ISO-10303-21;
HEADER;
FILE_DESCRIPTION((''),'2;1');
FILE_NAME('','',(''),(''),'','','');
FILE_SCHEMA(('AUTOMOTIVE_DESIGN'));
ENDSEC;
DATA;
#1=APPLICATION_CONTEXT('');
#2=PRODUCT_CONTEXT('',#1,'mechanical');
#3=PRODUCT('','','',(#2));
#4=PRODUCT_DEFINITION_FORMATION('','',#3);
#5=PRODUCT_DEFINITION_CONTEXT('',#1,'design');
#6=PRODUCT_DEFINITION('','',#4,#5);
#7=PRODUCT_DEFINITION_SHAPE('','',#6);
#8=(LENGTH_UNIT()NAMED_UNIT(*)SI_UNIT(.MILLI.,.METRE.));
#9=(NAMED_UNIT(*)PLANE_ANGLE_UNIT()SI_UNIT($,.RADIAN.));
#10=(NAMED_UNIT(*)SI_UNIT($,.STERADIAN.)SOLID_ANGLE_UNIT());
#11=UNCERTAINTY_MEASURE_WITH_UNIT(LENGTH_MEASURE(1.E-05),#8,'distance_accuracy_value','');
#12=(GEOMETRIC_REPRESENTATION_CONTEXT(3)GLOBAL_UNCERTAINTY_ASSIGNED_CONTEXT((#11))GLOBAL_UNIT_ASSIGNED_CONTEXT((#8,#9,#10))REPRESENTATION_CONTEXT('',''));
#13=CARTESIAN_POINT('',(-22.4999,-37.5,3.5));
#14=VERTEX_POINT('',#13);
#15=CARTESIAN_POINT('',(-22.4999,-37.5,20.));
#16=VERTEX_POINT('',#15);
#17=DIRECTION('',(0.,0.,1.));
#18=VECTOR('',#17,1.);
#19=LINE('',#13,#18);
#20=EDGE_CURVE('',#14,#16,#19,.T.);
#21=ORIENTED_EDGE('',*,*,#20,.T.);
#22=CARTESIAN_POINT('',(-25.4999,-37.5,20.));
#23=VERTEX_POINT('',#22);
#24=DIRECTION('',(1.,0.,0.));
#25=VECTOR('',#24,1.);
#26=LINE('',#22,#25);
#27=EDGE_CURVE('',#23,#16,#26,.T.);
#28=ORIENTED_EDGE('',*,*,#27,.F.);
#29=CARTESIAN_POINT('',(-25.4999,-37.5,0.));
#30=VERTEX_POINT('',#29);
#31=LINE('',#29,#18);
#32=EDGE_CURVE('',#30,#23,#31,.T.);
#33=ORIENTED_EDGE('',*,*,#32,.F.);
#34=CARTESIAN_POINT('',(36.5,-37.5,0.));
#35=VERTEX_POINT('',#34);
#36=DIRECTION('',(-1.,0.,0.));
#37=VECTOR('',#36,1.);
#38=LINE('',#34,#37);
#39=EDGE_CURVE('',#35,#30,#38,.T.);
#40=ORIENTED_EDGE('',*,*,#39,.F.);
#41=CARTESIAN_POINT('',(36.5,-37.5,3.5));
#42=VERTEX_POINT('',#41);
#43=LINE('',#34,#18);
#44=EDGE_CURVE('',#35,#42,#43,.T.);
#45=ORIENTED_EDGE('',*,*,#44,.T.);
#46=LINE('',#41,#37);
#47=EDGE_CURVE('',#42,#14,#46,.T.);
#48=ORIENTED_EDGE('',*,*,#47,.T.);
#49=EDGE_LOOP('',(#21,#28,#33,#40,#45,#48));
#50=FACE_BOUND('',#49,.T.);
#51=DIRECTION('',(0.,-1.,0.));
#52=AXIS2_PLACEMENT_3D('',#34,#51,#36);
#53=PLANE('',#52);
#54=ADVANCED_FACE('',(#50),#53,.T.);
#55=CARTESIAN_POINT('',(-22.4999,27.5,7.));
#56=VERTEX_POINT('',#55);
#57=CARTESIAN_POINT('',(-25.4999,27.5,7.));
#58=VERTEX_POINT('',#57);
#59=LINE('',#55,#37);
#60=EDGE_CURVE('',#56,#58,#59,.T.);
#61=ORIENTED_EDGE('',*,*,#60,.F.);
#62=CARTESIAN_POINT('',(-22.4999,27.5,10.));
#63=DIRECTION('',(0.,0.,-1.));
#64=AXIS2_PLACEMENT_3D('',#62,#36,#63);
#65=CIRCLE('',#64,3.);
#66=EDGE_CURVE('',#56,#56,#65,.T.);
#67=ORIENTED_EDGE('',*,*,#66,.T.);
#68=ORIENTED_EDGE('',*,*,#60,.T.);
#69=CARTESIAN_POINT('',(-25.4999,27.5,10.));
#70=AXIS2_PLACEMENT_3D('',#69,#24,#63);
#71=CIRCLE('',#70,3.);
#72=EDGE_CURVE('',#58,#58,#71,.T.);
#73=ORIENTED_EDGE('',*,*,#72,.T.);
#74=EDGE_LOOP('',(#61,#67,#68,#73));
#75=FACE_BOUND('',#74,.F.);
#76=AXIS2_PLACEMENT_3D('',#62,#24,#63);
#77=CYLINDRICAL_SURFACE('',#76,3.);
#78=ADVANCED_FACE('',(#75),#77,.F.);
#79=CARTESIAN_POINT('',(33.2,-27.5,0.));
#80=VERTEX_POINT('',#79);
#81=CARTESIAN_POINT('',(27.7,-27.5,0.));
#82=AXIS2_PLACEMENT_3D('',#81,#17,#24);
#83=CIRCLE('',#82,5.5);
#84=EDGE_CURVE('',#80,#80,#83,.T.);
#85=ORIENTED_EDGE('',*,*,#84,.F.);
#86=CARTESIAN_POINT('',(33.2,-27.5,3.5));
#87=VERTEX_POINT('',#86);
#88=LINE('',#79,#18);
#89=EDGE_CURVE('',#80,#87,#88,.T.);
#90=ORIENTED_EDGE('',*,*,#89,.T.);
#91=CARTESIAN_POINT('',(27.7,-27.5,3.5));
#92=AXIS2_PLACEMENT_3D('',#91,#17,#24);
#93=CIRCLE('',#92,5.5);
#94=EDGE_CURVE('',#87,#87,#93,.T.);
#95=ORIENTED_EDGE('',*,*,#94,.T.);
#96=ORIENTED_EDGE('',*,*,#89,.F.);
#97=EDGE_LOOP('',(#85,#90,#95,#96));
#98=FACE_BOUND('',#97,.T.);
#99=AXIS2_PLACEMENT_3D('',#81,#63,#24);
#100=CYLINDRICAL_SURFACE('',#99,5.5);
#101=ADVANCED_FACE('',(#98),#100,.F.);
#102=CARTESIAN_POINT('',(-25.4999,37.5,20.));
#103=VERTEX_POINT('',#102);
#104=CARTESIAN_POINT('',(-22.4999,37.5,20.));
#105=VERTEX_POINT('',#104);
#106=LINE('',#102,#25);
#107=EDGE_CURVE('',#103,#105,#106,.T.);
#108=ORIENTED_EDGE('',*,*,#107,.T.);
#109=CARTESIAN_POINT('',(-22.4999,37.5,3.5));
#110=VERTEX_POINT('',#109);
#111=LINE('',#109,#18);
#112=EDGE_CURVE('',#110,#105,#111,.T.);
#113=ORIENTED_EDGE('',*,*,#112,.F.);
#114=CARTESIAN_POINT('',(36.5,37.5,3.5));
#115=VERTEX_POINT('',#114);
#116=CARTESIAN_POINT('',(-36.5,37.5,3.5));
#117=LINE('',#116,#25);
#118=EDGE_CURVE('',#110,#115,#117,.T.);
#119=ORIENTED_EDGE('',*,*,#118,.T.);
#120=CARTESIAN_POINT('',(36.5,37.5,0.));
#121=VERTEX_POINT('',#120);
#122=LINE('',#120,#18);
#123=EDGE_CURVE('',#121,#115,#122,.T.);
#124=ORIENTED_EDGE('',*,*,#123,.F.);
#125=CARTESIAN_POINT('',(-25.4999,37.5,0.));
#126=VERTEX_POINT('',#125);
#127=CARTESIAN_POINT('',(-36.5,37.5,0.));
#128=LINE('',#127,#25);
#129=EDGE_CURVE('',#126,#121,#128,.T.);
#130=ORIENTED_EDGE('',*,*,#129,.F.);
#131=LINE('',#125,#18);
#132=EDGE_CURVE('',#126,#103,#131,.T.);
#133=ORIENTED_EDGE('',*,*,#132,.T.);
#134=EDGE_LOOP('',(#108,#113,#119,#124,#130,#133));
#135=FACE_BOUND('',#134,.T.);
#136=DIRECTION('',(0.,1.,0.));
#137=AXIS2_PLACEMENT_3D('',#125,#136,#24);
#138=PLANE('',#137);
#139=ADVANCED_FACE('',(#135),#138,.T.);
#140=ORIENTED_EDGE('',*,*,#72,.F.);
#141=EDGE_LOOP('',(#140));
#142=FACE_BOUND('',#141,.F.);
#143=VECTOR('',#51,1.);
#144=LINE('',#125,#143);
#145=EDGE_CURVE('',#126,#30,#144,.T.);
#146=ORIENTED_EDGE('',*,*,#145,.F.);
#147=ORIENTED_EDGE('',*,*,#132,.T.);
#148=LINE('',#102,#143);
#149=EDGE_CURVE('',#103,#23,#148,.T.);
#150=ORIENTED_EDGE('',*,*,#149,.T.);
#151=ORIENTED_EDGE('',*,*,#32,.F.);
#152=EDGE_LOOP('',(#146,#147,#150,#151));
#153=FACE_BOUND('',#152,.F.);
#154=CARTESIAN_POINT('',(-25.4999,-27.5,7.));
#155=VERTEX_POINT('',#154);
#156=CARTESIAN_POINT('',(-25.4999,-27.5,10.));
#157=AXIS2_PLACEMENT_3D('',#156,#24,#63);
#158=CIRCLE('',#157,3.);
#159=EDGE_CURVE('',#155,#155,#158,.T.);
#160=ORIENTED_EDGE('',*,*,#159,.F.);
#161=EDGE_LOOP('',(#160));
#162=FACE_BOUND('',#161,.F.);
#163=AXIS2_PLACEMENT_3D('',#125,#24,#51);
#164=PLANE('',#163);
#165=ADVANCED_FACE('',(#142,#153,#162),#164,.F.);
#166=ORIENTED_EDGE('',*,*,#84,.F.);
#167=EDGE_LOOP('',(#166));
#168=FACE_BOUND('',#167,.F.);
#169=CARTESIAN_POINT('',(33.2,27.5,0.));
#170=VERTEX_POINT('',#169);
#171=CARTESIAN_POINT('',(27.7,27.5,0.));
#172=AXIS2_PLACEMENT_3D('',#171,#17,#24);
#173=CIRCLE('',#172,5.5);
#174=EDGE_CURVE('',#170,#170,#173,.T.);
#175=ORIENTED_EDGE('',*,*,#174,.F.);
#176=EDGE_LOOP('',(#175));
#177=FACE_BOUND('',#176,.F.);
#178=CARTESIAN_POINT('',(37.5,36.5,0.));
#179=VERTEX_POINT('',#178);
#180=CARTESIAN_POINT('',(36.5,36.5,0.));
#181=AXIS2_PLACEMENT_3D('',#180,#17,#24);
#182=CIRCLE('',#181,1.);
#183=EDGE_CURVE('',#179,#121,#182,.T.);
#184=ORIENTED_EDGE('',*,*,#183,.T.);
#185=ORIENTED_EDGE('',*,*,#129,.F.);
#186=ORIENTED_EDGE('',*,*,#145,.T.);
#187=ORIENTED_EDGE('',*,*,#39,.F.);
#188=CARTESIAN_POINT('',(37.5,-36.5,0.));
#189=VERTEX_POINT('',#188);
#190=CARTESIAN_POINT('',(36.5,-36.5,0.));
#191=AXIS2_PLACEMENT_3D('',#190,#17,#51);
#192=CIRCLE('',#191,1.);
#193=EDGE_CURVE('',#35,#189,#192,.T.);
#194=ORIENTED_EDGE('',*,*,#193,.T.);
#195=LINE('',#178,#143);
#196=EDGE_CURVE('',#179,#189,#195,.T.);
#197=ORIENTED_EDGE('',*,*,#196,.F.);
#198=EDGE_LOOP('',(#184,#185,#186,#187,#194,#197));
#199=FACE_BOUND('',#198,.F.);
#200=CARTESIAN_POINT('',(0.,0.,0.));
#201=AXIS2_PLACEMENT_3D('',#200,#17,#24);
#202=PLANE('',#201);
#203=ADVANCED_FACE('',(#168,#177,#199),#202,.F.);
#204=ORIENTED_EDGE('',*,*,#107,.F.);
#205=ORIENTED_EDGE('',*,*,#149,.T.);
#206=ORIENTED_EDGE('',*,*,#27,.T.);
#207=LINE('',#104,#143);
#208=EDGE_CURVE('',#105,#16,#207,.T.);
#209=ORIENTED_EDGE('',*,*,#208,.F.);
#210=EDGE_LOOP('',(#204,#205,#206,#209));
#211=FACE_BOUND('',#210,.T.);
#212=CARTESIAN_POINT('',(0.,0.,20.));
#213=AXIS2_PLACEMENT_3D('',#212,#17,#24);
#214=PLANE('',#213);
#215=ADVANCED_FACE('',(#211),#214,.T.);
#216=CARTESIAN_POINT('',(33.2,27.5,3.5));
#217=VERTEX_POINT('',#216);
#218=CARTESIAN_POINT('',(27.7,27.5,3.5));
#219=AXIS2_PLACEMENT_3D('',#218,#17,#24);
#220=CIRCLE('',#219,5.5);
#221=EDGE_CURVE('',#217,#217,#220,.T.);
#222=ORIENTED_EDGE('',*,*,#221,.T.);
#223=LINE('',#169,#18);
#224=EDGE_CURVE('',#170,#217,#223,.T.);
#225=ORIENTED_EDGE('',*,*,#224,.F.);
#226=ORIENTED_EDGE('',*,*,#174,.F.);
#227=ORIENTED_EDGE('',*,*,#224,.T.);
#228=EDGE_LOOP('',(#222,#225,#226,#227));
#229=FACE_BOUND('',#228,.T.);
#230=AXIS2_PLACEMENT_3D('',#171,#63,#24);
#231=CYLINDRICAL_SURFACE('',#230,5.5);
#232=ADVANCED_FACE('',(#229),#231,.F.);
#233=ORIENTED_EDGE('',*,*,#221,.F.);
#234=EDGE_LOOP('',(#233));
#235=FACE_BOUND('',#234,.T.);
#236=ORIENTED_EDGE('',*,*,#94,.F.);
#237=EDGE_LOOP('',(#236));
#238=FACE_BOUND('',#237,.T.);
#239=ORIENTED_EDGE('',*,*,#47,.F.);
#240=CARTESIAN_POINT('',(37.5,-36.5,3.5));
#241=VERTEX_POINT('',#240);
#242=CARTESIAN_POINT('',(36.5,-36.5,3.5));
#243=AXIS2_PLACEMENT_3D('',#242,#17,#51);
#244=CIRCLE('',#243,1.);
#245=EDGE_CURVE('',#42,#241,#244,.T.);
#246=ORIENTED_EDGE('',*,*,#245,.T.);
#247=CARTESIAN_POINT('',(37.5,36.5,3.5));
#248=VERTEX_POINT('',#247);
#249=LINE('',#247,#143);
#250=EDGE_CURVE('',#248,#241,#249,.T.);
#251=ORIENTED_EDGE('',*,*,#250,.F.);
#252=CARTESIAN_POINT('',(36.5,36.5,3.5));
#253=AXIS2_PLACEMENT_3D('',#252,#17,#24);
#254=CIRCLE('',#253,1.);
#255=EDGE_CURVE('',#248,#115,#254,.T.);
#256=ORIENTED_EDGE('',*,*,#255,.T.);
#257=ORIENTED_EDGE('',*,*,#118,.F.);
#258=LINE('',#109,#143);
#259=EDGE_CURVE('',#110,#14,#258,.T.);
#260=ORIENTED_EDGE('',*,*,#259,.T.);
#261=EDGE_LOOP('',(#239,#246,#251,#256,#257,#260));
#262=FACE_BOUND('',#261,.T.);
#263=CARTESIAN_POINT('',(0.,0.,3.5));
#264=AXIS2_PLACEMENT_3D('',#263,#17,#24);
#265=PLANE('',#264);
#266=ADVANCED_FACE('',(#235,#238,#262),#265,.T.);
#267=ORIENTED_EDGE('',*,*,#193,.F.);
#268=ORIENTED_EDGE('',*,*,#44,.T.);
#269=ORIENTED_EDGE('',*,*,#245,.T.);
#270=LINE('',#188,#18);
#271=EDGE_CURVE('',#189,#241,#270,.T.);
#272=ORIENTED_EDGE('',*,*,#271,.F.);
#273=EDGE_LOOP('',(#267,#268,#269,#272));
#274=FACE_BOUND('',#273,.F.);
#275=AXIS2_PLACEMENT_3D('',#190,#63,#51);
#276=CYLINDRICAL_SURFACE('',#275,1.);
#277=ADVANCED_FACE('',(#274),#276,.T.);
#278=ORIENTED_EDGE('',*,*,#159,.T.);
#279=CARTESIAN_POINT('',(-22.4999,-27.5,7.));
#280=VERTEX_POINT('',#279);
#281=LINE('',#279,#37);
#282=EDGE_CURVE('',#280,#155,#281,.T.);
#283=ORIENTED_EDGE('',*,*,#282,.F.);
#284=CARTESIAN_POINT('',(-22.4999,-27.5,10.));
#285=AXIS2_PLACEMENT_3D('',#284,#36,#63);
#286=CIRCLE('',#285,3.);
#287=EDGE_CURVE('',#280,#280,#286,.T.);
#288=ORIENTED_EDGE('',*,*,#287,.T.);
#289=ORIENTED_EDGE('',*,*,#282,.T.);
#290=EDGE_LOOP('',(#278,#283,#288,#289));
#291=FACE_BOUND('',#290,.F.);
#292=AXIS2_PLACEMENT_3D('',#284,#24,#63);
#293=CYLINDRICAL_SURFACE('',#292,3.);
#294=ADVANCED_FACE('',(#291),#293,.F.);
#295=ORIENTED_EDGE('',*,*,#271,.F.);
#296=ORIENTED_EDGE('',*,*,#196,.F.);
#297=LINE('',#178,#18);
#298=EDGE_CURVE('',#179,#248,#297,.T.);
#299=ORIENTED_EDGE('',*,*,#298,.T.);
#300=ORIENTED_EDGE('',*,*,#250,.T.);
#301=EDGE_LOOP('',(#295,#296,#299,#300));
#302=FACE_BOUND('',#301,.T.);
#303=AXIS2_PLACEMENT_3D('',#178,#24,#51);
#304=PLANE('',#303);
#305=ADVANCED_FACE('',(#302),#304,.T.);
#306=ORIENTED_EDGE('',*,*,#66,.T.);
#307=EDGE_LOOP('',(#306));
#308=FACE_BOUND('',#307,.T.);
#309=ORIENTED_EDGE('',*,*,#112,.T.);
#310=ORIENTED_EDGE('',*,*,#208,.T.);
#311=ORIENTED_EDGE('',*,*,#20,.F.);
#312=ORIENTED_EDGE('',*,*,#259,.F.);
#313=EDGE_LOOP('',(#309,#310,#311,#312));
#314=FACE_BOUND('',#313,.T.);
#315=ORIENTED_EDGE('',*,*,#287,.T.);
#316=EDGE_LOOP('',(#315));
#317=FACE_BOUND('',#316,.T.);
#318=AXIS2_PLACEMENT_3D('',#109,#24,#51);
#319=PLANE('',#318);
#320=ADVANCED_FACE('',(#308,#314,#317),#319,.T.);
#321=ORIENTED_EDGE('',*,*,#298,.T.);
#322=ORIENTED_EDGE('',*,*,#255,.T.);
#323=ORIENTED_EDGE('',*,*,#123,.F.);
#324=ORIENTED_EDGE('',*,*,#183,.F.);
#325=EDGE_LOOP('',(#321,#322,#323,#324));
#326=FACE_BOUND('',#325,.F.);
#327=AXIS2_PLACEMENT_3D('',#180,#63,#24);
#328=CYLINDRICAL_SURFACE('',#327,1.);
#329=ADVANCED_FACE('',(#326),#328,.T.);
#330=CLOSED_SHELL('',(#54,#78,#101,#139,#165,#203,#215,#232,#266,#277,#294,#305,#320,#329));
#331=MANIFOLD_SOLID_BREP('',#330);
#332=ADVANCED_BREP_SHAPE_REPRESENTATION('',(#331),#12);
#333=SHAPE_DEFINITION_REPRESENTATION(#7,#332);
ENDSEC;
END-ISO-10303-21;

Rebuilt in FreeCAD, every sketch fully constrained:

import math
import FreeCAD as App
import Part
import Sketcher
from FreeCAD import Vector

doc = App.newDocument("Part")
body = doc.addObject("PartDesign::Body", "Body")

# Sketch on XY plane
sketch1 = body.newObject("Sketcher::SketchObject", "Sketch")
sketch1.AttachmentSupport = (doc.getObject("XY_Plane"), [""])
sketch1.MapMode = "FlatFace"
sketch1.addGeometry(Part.LineSegment(Vector(36.5, 37.5, 0), Vector(-25.5, 37.5, 0)), False)
sketch1.addGeometry(Part.LineSegment(Vector(-25.5, 37.5, 0), Vector(-25.5, -37.5, 0)), False)
sketch1.addGeometry(Part.LineSegment(Vector(-25.5, -37.5, 0), Vector(36.5, -37.5, 0)), False)
sketch1.addGeometry(Part.ArcOfCircle(Part.Circle(Vector(36.5, -36.5, 0), Vector(0, 0, 1), 1), math.radians(-90), math.radians(0)), False)
sketch1.addGeometry(Part.LineSegment(Vector(37.5, -36.5, 0), Vector(37.5, 36.5, 0)), False)
sketch1.addGeometry(Part.ArcOfCircle(Part.Circle(Vector(36.5, 36.5, 0), Vector(0, 0, 1), 1), math.radians(0), math.radians(90)), False)
sketch1.addGeometry(Part.Circle(Vector(27.7, -27.5, 0), Vector(0, 0, 1), 5.5), False)
sketch1.addGeometry(Part.Circle(Vector(27.7, 27.5, 0), Vector(0, 0, 1), 5.5), False)
sketch1.addConstraint(Sketcher.Constraint("Coincident", 0, 2, 1, 1))
sketch1.addConstraint(Sketcher.Constraint("Coincident", 1, 2, 2, 1))
sketch1.addConstraint(Sketcher.Constraint("Tangent", 2, 2, 3, 1))
sketch1.addConstraint(Sketcher.Constraint("Tangent", 3, 2, 4, 1))
sketch1.addConstraint(Sketcher.Constraint("Tangent", 4, 2, 5, 1))
sketch1.addConstraint(Sketcher.Constraint("Tangent", 5, 2, 0, 1))
sketch1.addConstraint(Sketcher.Constraint("Horizontal", 0))
sketch1.addConstraint(Sketcher.Constraint("Vertical", 1))
sketch1.addConstraint(Sketcher.Constraint("Horizontal", 2))
sketch1.addConstraint(Sketcher.Constraint("Vertical", 4))
sketch1.addConstraint(Sketcher.Constraint("Equal", 3, 5))
sketch1.addConstraint(Sketcher.Constraint("Equal", 6, 7))
sketch1.addConstraint(Sketcher.Constraint("Symmetric", 6, 3, 7, 3, -1))
sketch1.addConstraint(Sketcher.Constraint("Diameter", 6, 11.0))
sketch1.addConstraint(Sketcher.Constraint("Radius", 3, 1.0))
sketch1.addConstraint(Sketcher.Constraint("DistanceX", 0, 2, 0, 1, 62.0))
sketch1.addConstraint(Sketcher.Constraint("DistanceY", 1, 2, 1, 1, 75.0))
sketch1.addConstraint(Sketcher.Constraint("DistanceY", 3, 3, 6, 3, 9.0))
sketch1.addConstraint(Sketcher.Constraint("DistanceY", 7, 3, 5, 3, 9.0))
sketch1.addConstraint(Sketcher.Constraint("DistanceX", -1, 1, 3, 3, 36.5))
sketch1.addConstraint(Sketcher.Constraint("DistanceX", -1, 1, 6, 3, 27.7))
pad1 = body.newObject("PartDesign::Pad", "Pad")
pad1.Profile = sketch1
pad1.Length = 3.5

# Sketch on XY plane
sketch2 = body.newObject("Sketcher::SketchObject", "Sketch001")
sketch2.AttachmentSupport = (doc.getObject("XY_Plane"), [""])
sketch2.MapMode = "FlatFace"
sketch2.AttachmentOffset = App.Placement(Vector(0, 0, 3.5), App.Rotation())
sketch2.addGeometry(Part.LineSegment(Vector(-22.5, 37.5, 0), Vector(-25.5, 37.5, 0)), False)
sketch2.addGeometry(Part.LineSegment(Vector(-25.5, 37.5, 0), Vector(-25.5, -37.5, 0)), False)
sketch2.addGeometry(Part.LineSegment(Vector(-25.5, -37.5, 0), Vector(-22.5, -37.5, 0)), False)
sketch2.addGeometry(Part.LineSegment(Vector(-22.5, -37.5, 0), Vector(-22.5, 37.5, 0)), False)
sketch2.addConstraint(Sketcher.Constraint("Coincident", 0, 2, 1, 1))
sketch2.addConstraint(Sketcher.Constraint("Coincident", 1, 2, 2, 1))
sketch2.addConstraint(Sketcher.Constraint("Coincident", 2, 2, 3, 1))
sketch2.addConstraint(Sketcher.Constraint("Coincident", 3, 2, 0, 1))
sketch2.addConstraint(Sketcher.Constraint("Horizontal", 0))
sketch2.addConstraint(Sketcher.Constraint("Vertical", 1))
sketch2.addConstraint(Sketcher.Constraint("Horizontal", 2))
sketch2.addConstraint(Sketcher.Constraint("Vertical", 3))
sketch2.addConstraint(Sketcher.Constraint("DistanceX", 0, 2, 0, 1, 3.0))
sketch2.addConstraint(Sketcher.Constraint("DistanceY", 1, 2, 1, 1, 75.0))
sketch2.addConstraint(Sketcher.Constraint("DistanceX", 0, 2, -1, 1, 25.5))
sketch2.addConstraint(Sketcher.Constraint("DistanceY", -1, 1, 0, 2, 37.5))
pad2 = body.newObject("PartDesign::Pad", "Pad001")
pad2.Profile = sketch2
pad2.Length = 16.5

# Sketch on YZ plane
sketch3 = body.newObject("Sketcher::SketchObject", "Sketch002")
sketch3.AttachmentSupport = (doc.getObject("YZ_Plane"), [""])
sketch3.MapMode = "FlatFace"
sketch3.AttachmentOffset = App.Placement(Vector(0, 0, -22.4999), App.Rotation())
sketch3.addGeometry(Part.Circle(Vector(27.5, 10, 0), Vector(0, 0, 1), 3), False)
sketch3.addGeometry(Part.Circle(Vector(-27.5, 10, 0), Vector(0, 0, 1), 3), False)
sketch3.addConstraint(Sketcher.Constraint("Equal", 0, 1))
sketch3.addConstraint(Sketcher.Constraint("Symmetric", 0, 3, 1, 3, -2))
sketch3.addConstraint(Sketcher.Constraint("Diameter", 0, 6.0))
sketch3.addConstraint(Sketcher.Constraint("DistanceY", -1, 1, 0, 3, 10.0))
sketch3.addConstraint(Sketcher.Constraint("DistanceX", 1, 3, 0, 3, 55.0))
pocket1 = body.newObject("PartDesign::Pocket", "Pocket")
pocket1.Profile = sketch3
pocket1.Length = 16.5

doc.recompute()
